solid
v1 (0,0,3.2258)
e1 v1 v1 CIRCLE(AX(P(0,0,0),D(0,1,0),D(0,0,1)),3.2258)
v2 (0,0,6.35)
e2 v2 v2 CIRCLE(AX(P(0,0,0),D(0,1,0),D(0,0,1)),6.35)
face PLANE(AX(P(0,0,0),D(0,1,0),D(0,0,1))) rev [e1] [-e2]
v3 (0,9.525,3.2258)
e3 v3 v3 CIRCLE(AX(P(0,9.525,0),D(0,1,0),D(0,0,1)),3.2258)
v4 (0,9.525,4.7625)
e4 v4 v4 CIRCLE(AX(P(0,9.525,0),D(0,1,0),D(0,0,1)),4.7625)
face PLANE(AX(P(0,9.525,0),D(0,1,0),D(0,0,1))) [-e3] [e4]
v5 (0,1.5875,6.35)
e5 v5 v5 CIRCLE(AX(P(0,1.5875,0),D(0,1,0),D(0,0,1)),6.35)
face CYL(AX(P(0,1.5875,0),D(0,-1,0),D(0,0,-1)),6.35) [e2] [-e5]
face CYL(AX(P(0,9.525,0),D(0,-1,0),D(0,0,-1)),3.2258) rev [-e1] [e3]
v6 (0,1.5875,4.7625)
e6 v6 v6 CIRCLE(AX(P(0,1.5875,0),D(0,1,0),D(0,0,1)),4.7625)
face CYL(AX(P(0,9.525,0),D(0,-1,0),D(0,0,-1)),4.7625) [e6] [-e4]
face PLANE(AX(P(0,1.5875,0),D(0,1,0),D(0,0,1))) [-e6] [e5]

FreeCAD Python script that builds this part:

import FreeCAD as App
import Part
import Sketcher

V = App.Vector
Q = App.Units.Quantity

doc = App.newDocument("Part")
body = doc.addObject("PartDesign::Body", "Body")

# Sketch on XZ plane
sketch1 = body.newObject("Sketcher::SketchObject", "Sketch")
sketch1.AttachmentSupport = (doc.getObject("XZ_Plane"), [""])
sketch1.MapMode = "FlatFace"
sketch1.addGeometry([
    Part.Circle(V(0, 0, 0), V(0, 0, 1), 4.8),
    Part.Circle(V(0, 0, 0), V(0, 0, 1), 3.2),
], False)
sketch1.addConstraint([
    Sketcher.Constraint("Coincident", 0, 3, -1, 1),
    Sketcher.Constraint("Coincident", 1, 3, -1, 1),
    Sketcher.Constraint("Diameter", 0, Q("0.375 in")),
    Sketcher.Constraint("Diameter", 1, Q("0.254 in")),
])
pad1 = body.newObject("PartDesign::Pad", "Pad")
pad1.Profile = sketch1
pad1.Length = Q("0.375 in")
pad1.Reversed = True

# Sketch on XZ plane
sketch2 = body.newObject("Sketcher::SketchObject", "Sketch001")
sketch2.AttachmentSupport = (doc.getObject("XZ_Plane"), [""])
sketch2.MapMode = "FlatFace"
sketch2.addGeometry([
    Part.Circle(V(0, 0, 0), V(0, 0, 1), 6.3),
    Part.Circle(V(0, 0, 0), V(0, 0, 1), 4.8),
], False)
sketch2.addConstraint([
    Sketcher.Constraint("Coincident", 0, 3, -1, 1),
    Sketcher.Constraint("Coincident", 1, 3, -1, 1),
    Sketcher.Constraint("Diameter", 0, Q("0.5 in")),
    Sketcher.Constraint("Diameter", 1, Q("0.375 in")),
])
pad2 = body.newObject("PartDesign::Pad", "Pad001")
pad2.Profile = sketch2
pad2.Length = Q("0.0625 in")
pad2.Reversed = True

doc.recompute()
